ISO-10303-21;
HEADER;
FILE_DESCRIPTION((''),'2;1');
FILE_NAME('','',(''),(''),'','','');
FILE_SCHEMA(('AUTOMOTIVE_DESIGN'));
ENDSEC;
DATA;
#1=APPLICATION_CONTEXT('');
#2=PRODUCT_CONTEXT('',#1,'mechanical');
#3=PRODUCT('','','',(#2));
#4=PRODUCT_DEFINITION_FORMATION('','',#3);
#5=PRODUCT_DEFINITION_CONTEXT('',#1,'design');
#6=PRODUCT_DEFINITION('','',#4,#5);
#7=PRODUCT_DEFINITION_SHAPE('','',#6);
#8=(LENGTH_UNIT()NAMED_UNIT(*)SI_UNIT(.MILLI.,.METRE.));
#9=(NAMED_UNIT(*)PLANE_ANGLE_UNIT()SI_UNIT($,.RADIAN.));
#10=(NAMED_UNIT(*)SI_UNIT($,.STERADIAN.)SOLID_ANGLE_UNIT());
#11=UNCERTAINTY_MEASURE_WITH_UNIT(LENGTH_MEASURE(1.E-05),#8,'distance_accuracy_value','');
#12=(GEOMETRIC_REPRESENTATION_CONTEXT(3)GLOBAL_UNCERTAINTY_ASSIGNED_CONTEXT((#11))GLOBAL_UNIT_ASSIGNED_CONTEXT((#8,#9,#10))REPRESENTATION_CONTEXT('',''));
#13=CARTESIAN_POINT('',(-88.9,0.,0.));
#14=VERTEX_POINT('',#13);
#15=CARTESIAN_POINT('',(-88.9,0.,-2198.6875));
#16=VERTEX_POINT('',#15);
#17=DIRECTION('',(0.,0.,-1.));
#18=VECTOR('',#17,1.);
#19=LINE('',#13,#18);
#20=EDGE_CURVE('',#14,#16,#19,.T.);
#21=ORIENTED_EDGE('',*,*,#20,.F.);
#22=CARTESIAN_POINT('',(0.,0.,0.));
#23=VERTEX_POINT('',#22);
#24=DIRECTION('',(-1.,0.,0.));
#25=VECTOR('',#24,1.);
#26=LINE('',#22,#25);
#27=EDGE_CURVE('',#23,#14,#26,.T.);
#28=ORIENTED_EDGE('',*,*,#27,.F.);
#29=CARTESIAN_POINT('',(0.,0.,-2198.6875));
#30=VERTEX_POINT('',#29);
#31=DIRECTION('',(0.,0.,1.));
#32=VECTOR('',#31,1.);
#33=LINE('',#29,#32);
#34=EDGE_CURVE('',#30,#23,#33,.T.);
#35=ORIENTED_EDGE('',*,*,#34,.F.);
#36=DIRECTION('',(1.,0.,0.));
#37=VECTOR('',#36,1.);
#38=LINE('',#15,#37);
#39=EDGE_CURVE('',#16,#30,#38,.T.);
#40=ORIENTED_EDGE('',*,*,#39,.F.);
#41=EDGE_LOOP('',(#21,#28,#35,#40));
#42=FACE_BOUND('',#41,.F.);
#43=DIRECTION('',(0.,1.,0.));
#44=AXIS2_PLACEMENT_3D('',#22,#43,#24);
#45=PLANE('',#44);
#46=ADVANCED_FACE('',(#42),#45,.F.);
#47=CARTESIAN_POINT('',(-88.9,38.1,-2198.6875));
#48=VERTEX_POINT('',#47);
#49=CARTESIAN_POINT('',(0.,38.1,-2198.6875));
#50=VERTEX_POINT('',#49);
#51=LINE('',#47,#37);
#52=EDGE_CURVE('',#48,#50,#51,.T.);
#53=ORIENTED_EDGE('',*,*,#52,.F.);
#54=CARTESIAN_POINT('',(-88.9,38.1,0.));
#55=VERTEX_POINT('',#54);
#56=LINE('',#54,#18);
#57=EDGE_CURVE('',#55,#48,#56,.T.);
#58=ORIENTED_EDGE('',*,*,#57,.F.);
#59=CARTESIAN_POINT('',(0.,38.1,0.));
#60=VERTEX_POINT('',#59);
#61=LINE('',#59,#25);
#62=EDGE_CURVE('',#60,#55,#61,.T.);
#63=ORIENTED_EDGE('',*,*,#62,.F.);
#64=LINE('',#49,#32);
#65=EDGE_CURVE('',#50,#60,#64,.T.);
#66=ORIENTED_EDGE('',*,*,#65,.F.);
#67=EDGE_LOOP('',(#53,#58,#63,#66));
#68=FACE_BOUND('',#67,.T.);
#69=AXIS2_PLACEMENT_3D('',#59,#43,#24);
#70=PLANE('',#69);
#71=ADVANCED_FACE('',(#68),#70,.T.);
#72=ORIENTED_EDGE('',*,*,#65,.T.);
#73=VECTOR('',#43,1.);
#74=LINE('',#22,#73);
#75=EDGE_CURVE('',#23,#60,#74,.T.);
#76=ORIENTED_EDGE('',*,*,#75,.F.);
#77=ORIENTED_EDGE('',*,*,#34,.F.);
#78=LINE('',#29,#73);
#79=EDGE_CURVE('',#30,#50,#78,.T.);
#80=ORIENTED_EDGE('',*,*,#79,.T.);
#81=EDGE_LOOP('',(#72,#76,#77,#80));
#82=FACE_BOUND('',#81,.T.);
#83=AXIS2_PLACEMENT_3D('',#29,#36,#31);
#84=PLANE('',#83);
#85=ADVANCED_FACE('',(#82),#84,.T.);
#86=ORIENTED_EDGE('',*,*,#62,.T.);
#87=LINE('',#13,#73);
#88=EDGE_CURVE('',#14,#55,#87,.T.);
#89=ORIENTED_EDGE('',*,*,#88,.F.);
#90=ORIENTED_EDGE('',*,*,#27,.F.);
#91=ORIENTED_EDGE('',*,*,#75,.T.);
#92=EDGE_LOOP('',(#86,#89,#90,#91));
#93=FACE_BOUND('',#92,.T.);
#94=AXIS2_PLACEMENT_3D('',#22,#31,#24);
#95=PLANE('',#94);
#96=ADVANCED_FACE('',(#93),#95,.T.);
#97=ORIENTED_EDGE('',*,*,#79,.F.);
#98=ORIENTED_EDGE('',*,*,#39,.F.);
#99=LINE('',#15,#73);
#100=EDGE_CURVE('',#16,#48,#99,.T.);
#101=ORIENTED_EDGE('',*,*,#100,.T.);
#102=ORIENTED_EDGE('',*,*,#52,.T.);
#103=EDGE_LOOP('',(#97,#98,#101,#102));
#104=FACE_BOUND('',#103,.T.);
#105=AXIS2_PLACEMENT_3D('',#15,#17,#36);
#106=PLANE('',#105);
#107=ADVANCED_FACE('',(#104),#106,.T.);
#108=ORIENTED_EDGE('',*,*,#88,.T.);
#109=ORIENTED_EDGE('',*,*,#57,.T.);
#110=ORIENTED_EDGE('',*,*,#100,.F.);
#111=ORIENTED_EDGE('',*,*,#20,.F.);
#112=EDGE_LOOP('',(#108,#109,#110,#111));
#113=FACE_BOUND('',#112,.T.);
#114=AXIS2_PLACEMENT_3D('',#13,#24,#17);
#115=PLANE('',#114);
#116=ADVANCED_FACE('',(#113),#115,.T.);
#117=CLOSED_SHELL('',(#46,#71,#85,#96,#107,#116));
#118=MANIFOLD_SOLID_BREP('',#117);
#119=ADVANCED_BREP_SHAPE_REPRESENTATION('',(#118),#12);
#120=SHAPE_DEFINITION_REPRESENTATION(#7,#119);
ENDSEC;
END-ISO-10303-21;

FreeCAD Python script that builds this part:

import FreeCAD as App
import Part
import Sketcher
from FreeCAD import Vector
Q = App.Units.Quantity


def add_polygon(sketch, points):
    """Adds a closed chain of lines whose ends are joined by coincident constraints."""
    first, n = sketch.GeometryCount, len(points)
    for a, b in zip(points, points[1:] + points[:1]):
        sketch.addGeometry(Part.LineSegment(App.Vector(*a, 0), App.Vector(*b, 0)), False)
    for i in range(n):
        sketch.addConstraint(Sketcher.Constraint("Coincident", first + i, 2, first + (i + 1) % n, 1))

doc = App.newDocument("Part")
body = doc.addObject("PartDesign::Body", "Body")

# Sketch on XZ plane
sketch1 = doc.addObject("Sketcher::SketchObject", "Sketch")
body.addObject(sketch1)
sketch1.AttachmentSupport = (doc.XZ_Plane, [""])
sketch1.MapMode = "FlatFace"
add_polygon(sketch1, [(-89, 0), (0, 0), (0, -2199), (-89, -2199)])  # lines 0-3
sketch1.addConstraint(Sketcher.Constraint("Horizontal", 0))
sketch1.addConstraint(Sketcher.Constraint("Vertical", 1))
sketch1.addConstraint(Sketcher.Constraint("Horizontal", 2))
sketch1.addConstraint(Sketcher.Constraint("Vertical", 3))
sketch1.addConstraint(Sketcher.Constraint("Coincident", 0, 2, -1, 1))
sketch1.addConstraint(Sketcher.Constraint("DistanceX", 0, 1, 0, 2, Q("3.5 in")))
sketch1.addConstraint(Sketcher.Constraint("DistanceY", 1, 2, 1, 1, Q("86.5625 in")))
pad1 = doc.addObject("PartDesign::Pad", "Pad")
body.addObject(pad1)
pad1.Profile = sketch1
pad1.Length = Q("1.5 in")
pad1.Reversed = True

doc.recompute()
